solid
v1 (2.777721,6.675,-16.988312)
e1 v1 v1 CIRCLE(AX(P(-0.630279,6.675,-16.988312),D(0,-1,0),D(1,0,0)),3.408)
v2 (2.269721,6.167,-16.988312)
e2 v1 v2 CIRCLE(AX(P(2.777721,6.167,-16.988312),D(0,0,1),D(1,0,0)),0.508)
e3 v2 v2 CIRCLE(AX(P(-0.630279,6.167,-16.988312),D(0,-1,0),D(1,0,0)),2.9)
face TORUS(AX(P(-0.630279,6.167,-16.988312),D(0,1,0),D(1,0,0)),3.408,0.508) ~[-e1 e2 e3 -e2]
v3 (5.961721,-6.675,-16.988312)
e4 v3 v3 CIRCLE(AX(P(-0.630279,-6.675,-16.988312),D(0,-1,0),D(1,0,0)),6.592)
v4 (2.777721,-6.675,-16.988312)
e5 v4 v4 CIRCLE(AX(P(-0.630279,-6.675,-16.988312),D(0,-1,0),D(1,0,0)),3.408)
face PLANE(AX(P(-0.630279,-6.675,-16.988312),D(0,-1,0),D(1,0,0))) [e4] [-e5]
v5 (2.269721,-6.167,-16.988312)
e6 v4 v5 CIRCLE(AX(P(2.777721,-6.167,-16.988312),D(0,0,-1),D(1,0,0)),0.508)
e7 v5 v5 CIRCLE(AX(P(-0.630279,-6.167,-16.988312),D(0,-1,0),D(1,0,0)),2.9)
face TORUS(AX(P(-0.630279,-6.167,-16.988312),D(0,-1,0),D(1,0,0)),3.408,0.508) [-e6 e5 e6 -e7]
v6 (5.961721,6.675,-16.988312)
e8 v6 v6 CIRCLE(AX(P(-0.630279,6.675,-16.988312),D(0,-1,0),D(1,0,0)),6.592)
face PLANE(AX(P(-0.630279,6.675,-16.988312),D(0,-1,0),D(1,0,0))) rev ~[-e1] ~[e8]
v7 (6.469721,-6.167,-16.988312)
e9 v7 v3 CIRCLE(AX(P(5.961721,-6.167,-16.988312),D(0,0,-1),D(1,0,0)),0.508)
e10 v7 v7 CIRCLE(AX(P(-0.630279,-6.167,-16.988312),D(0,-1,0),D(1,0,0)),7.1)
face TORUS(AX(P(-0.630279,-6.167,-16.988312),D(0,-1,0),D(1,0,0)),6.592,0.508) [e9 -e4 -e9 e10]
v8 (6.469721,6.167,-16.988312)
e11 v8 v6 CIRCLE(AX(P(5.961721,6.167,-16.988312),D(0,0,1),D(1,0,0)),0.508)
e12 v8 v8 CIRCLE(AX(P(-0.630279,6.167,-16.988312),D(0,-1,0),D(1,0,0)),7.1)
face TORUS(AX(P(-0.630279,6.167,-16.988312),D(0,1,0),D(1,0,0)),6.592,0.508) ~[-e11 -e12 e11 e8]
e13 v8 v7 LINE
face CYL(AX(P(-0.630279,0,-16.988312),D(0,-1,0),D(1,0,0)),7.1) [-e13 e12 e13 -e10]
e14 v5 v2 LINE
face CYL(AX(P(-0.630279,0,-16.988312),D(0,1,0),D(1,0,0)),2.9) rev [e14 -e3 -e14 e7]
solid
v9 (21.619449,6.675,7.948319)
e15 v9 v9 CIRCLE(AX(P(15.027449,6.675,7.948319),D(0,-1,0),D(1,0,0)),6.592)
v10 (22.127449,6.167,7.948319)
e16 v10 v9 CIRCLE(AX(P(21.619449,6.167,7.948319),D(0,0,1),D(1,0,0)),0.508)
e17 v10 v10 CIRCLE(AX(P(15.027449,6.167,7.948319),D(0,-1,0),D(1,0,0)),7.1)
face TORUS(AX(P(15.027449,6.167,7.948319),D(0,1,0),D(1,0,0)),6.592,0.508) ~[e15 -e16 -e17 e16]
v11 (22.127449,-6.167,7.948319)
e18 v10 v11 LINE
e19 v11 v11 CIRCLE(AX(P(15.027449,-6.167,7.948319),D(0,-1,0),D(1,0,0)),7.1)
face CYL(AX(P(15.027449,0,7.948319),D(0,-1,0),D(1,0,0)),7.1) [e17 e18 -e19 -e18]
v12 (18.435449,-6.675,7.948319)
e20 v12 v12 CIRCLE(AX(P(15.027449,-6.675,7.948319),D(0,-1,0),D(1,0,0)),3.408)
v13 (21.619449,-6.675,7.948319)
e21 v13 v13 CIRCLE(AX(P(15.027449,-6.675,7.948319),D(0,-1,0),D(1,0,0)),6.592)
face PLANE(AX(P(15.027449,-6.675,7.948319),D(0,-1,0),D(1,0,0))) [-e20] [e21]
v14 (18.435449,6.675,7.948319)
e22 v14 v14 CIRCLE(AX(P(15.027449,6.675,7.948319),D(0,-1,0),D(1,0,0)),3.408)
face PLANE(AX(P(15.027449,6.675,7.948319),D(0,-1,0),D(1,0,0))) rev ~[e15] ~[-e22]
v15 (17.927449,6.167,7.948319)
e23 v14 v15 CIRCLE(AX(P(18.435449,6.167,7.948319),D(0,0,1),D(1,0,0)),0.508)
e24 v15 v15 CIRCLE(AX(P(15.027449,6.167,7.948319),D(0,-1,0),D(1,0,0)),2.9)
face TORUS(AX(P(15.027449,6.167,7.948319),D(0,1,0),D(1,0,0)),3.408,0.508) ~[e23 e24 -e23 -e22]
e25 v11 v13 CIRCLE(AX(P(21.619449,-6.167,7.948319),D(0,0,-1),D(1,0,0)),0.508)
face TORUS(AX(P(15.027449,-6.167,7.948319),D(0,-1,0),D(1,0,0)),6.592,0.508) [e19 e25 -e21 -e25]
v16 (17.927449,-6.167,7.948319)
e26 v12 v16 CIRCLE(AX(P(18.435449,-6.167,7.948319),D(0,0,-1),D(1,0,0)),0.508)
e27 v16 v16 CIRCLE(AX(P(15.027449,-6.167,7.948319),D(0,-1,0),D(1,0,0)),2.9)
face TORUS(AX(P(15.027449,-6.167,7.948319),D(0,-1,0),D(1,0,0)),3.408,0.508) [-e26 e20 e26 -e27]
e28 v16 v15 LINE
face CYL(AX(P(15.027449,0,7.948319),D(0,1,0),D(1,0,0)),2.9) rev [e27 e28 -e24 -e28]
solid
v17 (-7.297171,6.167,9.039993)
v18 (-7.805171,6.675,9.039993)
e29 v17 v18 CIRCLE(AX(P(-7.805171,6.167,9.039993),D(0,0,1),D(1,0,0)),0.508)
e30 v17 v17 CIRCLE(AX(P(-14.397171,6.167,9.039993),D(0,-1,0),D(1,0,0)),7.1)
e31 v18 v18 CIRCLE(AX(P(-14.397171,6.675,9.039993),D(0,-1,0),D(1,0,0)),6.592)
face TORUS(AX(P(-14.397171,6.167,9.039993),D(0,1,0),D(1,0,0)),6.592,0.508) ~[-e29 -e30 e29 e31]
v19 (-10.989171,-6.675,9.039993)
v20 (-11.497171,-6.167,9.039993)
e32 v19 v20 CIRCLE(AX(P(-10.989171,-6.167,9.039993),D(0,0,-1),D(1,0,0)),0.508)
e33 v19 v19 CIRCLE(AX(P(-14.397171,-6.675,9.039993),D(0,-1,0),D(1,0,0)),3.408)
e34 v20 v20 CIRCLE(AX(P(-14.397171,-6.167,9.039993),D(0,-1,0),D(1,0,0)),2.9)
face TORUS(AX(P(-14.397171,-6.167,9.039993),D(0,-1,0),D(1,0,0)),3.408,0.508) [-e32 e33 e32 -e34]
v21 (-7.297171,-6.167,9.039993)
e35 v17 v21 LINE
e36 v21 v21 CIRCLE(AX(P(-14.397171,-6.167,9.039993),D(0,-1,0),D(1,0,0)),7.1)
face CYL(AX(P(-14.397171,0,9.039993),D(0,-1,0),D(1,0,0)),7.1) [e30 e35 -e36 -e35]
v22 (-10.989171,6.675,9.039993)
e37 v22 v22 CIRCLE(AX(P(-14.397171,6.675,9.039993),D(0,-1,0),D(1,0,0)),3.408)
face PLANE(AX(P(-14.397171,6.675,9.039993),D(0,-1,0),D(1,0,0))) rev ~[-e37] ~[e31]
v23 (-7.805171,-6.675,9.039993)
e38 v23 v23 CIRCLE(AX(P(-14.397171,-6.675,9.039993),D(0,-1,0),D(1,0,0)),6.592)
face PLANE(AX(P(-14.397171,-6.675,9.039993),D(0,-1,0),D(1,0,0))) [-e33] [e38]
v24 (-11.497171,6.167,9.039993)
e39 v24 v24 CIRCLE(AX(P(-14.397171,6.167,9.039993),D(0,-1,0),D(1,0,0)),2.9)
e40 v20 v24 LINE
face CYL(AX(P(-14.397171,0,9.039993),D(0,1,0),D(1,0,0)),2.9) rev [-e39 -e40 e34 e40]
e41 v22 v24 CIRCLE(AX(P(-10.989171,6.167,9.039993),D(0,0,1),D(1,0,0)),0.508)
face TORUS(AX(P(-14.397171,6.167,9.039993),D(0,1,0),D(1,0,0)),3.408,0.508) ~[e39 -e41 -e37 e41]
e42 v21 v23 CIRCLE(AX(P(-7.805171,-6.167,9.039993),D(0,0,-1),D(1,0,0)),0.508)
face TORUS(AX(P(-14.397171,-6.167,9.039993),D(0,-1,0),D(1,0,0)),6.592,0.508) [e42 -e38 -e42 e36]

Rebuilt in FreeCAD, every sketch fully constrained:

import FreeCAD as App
import Part
import Sketcher

V = App.Vector
Q = App.Units.Quantity


def edges_at(feature, points):
    """Names of the edges that pass closest to the given points."""
    edges = feature.Shape.Edges
    near = lambda p: min(range(len(edges)), key=lambda i: edges[i].distToShape(Part.Vertex(*p))[0])
    return sorted({f"Edge{near(p) + 1}" for p in points})

doc = App.newDocument("Part")
params = doc.addObject("Spreadsheet::Sheet", "Params")
for row, (alias, value) in enumerate([
    ("sketch1_diameter", "14.2 mm"),
    ("sketch1_diameter2", "5.8 mm"),
    ("pad1_length", "13.35 mm"),
    ("fillet_radius", "0.508 mm"),
    ("fillet2_radius", "0.508 mm"),
    ("sketch2_diameter", "14.2 mm"),
    ("sketch2_diameter2", "5.8 mm"),
    ("pad2_length", "13.35 mm"),
    ("fillet3_radius", "0.508 mm"),
    ("fillet4_radius", "0.508 mm"),
    ("sketch3_diameter", "14.2 mm"),
    ("sketch3_diameter2", "5.8 mm"),
    ("pad3_length", "13.35 mm"),
    ("fillet5_radius", "0.508 mm"),
    ("fillet6_radius", "0.508 mm"),
], start=1):
    params.set(f"A{row}", alias)
    params.set(f"B{row}", "=" + value)
    params.setAlias(f"B{row}", alias)

body = doc.addObject("PartDesign::Body", "Body")

# Sketch on XZ plane
sketch1 = doc.addObject("Sketcher::SketchObject", "Sketch")
body.addObject(sketch1)
sketch1.AttachmentSupport = (doc.XZ_Plane, [""])
sketch1.MapMode = "FlatFace"
sketch1.addGeometry([
    Part.Circle(V(15, 7.9, 0), V(0, 0, 1), 7.1),
    Part.Circle(V(15, 7.9, 0), V(0, 0, 1), 2.9),
], False)
sketch1.addConstraint([
    Sketcher.Constraint("Coincident", 1, 3, 0, 3),
    Sketcher.Constraint("Diameter", 0, Q("14.2 mm")),
    Sketcher.Constraint("Diameter", 1, Q("5.8 mm")),
    Sketcher.Constraint("DistanceX", -1, 1, 0, 3, Q("15.027449 mm")),
    Sketcher.Constraint("DistanceY", -1, 1, 0, 3, Q("7.948319 mm")),
])
sketch1.setExpression("Constraints[1]", "Params.sketch1_diameter")
sketch1.setExpression("Constraints[2]", "Params.sketch1_diameter2")
pad1 = doc.addObject("PartDesign::Pad", "Pad")
body.addObject(pad1)
pad1.Profile = sketch1
pad1.setExpression("Length", "Params.pad1_length")
pad1.Midplane = True
doc.recompute()

fillet = doc.addObject("PartDesign::Fillet", "Fillet")
body.addObject(fillet)
fillet.Base = (pad1, edges_at(pad1, [(7.927, 6.675, 7.948), (7.927, -6.675, 7.948)]))
fillet.setExpression("Radius", "Params.fillet_radius")
doc.recompute()

fillet2 = doc.addObject("PartDesign::Fillet", "Fillet001")
body.addObject(fillet2)
fillet2.Base = (fillet, edges_at(fillet, [(12.127, -6.675, 7.948), (12.127, 6.675, 7.948)]))
fillet2.setExpression("Radius", "Params.fillet2_radius")
body2 = doc.addObject("PartDesign::Body", "Body001")

# Sketch on XZ plane
sketch2 = doc.addObject("Sketcher::SketchObject", "Sketch001")
body2.addObject(sketch2)
sketch2.AttachmentSupport = (doc.getObject("XZ_Plane001"), [""])
sketch2.MapMode = "FlatFace"
sketch2.addGeometry([
    Part.Circle(V(-14.4, 9, 0), V(0, 0, 1), 7.1),
    Part.Circle(V(-14.4, 9, 0), V(0, 0, 1), 2.9),
], False)
sketch2.addConstraint([
    Sketcher.Constraint("Coincident", 1, 3, 0, 3),
    Sketcher.Constraint("Diameter", 0, Q("14.2 mm")),
    Sketcher.Constraint("Diameter", 1, Q("5.8 mm")),
    Sketcher.Constraint("DistanceX", 0, 3, -1, 1, Q("14.397171 mm")),
    Sketcher.Constraint("DistanceY", -1, 1, 0, 3, Q("9.039993 mm")),
])
sketch2.setExpression("Constraints[1]", "Params.sketch2_diameter")
sketch2.setExpression("Constraints[2]", "Params.sketch2_diameter2")
pad2 = doc.addObject("PartDesign::Pad", "Pad001")
body2.addObject(pad2)
pad2.Profile = sketch2
pad2.setExpression("Length", "Params.pad2_length")
pad2.Midplane = True
doc.recompute()

fillet3 = doc.addObject("PartDesign::Fillet", "Fillet002")
body2.addObject(fillet3)
fillet3.Base = (pad2, edges_at(pad2, [(-21.497, 6.675, 9.04), (-21.497, -6.675, 9.04)]))
fillet3.setExpression("Radius", "Params.fillet3_radius")
doc.recompute()

fillet4 = doc.addObject("PartDesign::Fillet", "Fillet003")
body2.addObject(fillet4)
fillet4.Base = (fillet3, edges_at(fillet3, [(-17.297, -6.675, 9.04), (-17.297, 6.675, 9.04)]))
fillet4.setExpression("Radius", "Params.fillet4_radius")
body3 = doc.addObject("PartDesign::Body", "Body002")

# Sketch on XZ plane
sketch3 = doc.addObject("Sketcher::SketchObject", "Sketch002")
body3.addObject(sketch3)
sketch3.AttachmentSupport = (doc.getObject("XZ_Plane002"), [""])
sketch3.MapMode = "FlatFace"
sketch3.addGeometry([
    Part.Circle(V(-0.6, -17, 0), V(0, 0, 1), 7.1),
    Part.Circle(V(-0.6, -17, 0), V(0, 0, 1), 2.9),
], False)
sketch3.addConstraint([
    Sketcher.Constraint("Coincident", 1, 3, 0, 3),
    Sketcher.Constraint("Diameter", 0, Q("14.2 mm")),
    Sketcher.Constraint("Diameter", 1, Q("5.8 mm")),
    Sketcher.Constraint("DistanceX", 0, 3, -1, 1, Q("0.630279 mm")),
    Sketcher.Constraint("DistanceY", 0, 3, -1, 1, Q("16.988312 mm")),
])
sketch3.setExpression("Constraints[1]", "Params.sketch3_diameter")
sketch3.setExpression("Constraints[2]", "Params.sketch3_diameter2")
pad3 = doc.addObject("PartDesign::Pad", "Pad002")
body3.addObject(pad3)
pad3.Profile = sketch3
pad3.setExpression("Length", "Params.pad3_length")
pad3.Midplane = True
doc.recompute()

fillet5 = doc.addObject("PartDesign::Fillet", "Fillet004")
body3.addObject(fillet5)
fillet5.Base = (pad3, edges_at(pad3, [(-7.73, 6.675, -16.988), (-7.73, -6.675, -16.988)]))
fillet5.setExpression("Radius", "Params.fillet5_radius")
doc.recompute()

fillet6 = doc.addObject("PartDesign::Fillet", "Fillet005")
body3.addObject(fillet6)
fillet6.Base = (fillet5, edges_at(fillet5, [(-3.53, -6.675, -16.988), (-3.53, 6.675, -16.988)]))
fillet6.setExpression("Radius", "Params.fillet6_radius")

doc.recompute()
